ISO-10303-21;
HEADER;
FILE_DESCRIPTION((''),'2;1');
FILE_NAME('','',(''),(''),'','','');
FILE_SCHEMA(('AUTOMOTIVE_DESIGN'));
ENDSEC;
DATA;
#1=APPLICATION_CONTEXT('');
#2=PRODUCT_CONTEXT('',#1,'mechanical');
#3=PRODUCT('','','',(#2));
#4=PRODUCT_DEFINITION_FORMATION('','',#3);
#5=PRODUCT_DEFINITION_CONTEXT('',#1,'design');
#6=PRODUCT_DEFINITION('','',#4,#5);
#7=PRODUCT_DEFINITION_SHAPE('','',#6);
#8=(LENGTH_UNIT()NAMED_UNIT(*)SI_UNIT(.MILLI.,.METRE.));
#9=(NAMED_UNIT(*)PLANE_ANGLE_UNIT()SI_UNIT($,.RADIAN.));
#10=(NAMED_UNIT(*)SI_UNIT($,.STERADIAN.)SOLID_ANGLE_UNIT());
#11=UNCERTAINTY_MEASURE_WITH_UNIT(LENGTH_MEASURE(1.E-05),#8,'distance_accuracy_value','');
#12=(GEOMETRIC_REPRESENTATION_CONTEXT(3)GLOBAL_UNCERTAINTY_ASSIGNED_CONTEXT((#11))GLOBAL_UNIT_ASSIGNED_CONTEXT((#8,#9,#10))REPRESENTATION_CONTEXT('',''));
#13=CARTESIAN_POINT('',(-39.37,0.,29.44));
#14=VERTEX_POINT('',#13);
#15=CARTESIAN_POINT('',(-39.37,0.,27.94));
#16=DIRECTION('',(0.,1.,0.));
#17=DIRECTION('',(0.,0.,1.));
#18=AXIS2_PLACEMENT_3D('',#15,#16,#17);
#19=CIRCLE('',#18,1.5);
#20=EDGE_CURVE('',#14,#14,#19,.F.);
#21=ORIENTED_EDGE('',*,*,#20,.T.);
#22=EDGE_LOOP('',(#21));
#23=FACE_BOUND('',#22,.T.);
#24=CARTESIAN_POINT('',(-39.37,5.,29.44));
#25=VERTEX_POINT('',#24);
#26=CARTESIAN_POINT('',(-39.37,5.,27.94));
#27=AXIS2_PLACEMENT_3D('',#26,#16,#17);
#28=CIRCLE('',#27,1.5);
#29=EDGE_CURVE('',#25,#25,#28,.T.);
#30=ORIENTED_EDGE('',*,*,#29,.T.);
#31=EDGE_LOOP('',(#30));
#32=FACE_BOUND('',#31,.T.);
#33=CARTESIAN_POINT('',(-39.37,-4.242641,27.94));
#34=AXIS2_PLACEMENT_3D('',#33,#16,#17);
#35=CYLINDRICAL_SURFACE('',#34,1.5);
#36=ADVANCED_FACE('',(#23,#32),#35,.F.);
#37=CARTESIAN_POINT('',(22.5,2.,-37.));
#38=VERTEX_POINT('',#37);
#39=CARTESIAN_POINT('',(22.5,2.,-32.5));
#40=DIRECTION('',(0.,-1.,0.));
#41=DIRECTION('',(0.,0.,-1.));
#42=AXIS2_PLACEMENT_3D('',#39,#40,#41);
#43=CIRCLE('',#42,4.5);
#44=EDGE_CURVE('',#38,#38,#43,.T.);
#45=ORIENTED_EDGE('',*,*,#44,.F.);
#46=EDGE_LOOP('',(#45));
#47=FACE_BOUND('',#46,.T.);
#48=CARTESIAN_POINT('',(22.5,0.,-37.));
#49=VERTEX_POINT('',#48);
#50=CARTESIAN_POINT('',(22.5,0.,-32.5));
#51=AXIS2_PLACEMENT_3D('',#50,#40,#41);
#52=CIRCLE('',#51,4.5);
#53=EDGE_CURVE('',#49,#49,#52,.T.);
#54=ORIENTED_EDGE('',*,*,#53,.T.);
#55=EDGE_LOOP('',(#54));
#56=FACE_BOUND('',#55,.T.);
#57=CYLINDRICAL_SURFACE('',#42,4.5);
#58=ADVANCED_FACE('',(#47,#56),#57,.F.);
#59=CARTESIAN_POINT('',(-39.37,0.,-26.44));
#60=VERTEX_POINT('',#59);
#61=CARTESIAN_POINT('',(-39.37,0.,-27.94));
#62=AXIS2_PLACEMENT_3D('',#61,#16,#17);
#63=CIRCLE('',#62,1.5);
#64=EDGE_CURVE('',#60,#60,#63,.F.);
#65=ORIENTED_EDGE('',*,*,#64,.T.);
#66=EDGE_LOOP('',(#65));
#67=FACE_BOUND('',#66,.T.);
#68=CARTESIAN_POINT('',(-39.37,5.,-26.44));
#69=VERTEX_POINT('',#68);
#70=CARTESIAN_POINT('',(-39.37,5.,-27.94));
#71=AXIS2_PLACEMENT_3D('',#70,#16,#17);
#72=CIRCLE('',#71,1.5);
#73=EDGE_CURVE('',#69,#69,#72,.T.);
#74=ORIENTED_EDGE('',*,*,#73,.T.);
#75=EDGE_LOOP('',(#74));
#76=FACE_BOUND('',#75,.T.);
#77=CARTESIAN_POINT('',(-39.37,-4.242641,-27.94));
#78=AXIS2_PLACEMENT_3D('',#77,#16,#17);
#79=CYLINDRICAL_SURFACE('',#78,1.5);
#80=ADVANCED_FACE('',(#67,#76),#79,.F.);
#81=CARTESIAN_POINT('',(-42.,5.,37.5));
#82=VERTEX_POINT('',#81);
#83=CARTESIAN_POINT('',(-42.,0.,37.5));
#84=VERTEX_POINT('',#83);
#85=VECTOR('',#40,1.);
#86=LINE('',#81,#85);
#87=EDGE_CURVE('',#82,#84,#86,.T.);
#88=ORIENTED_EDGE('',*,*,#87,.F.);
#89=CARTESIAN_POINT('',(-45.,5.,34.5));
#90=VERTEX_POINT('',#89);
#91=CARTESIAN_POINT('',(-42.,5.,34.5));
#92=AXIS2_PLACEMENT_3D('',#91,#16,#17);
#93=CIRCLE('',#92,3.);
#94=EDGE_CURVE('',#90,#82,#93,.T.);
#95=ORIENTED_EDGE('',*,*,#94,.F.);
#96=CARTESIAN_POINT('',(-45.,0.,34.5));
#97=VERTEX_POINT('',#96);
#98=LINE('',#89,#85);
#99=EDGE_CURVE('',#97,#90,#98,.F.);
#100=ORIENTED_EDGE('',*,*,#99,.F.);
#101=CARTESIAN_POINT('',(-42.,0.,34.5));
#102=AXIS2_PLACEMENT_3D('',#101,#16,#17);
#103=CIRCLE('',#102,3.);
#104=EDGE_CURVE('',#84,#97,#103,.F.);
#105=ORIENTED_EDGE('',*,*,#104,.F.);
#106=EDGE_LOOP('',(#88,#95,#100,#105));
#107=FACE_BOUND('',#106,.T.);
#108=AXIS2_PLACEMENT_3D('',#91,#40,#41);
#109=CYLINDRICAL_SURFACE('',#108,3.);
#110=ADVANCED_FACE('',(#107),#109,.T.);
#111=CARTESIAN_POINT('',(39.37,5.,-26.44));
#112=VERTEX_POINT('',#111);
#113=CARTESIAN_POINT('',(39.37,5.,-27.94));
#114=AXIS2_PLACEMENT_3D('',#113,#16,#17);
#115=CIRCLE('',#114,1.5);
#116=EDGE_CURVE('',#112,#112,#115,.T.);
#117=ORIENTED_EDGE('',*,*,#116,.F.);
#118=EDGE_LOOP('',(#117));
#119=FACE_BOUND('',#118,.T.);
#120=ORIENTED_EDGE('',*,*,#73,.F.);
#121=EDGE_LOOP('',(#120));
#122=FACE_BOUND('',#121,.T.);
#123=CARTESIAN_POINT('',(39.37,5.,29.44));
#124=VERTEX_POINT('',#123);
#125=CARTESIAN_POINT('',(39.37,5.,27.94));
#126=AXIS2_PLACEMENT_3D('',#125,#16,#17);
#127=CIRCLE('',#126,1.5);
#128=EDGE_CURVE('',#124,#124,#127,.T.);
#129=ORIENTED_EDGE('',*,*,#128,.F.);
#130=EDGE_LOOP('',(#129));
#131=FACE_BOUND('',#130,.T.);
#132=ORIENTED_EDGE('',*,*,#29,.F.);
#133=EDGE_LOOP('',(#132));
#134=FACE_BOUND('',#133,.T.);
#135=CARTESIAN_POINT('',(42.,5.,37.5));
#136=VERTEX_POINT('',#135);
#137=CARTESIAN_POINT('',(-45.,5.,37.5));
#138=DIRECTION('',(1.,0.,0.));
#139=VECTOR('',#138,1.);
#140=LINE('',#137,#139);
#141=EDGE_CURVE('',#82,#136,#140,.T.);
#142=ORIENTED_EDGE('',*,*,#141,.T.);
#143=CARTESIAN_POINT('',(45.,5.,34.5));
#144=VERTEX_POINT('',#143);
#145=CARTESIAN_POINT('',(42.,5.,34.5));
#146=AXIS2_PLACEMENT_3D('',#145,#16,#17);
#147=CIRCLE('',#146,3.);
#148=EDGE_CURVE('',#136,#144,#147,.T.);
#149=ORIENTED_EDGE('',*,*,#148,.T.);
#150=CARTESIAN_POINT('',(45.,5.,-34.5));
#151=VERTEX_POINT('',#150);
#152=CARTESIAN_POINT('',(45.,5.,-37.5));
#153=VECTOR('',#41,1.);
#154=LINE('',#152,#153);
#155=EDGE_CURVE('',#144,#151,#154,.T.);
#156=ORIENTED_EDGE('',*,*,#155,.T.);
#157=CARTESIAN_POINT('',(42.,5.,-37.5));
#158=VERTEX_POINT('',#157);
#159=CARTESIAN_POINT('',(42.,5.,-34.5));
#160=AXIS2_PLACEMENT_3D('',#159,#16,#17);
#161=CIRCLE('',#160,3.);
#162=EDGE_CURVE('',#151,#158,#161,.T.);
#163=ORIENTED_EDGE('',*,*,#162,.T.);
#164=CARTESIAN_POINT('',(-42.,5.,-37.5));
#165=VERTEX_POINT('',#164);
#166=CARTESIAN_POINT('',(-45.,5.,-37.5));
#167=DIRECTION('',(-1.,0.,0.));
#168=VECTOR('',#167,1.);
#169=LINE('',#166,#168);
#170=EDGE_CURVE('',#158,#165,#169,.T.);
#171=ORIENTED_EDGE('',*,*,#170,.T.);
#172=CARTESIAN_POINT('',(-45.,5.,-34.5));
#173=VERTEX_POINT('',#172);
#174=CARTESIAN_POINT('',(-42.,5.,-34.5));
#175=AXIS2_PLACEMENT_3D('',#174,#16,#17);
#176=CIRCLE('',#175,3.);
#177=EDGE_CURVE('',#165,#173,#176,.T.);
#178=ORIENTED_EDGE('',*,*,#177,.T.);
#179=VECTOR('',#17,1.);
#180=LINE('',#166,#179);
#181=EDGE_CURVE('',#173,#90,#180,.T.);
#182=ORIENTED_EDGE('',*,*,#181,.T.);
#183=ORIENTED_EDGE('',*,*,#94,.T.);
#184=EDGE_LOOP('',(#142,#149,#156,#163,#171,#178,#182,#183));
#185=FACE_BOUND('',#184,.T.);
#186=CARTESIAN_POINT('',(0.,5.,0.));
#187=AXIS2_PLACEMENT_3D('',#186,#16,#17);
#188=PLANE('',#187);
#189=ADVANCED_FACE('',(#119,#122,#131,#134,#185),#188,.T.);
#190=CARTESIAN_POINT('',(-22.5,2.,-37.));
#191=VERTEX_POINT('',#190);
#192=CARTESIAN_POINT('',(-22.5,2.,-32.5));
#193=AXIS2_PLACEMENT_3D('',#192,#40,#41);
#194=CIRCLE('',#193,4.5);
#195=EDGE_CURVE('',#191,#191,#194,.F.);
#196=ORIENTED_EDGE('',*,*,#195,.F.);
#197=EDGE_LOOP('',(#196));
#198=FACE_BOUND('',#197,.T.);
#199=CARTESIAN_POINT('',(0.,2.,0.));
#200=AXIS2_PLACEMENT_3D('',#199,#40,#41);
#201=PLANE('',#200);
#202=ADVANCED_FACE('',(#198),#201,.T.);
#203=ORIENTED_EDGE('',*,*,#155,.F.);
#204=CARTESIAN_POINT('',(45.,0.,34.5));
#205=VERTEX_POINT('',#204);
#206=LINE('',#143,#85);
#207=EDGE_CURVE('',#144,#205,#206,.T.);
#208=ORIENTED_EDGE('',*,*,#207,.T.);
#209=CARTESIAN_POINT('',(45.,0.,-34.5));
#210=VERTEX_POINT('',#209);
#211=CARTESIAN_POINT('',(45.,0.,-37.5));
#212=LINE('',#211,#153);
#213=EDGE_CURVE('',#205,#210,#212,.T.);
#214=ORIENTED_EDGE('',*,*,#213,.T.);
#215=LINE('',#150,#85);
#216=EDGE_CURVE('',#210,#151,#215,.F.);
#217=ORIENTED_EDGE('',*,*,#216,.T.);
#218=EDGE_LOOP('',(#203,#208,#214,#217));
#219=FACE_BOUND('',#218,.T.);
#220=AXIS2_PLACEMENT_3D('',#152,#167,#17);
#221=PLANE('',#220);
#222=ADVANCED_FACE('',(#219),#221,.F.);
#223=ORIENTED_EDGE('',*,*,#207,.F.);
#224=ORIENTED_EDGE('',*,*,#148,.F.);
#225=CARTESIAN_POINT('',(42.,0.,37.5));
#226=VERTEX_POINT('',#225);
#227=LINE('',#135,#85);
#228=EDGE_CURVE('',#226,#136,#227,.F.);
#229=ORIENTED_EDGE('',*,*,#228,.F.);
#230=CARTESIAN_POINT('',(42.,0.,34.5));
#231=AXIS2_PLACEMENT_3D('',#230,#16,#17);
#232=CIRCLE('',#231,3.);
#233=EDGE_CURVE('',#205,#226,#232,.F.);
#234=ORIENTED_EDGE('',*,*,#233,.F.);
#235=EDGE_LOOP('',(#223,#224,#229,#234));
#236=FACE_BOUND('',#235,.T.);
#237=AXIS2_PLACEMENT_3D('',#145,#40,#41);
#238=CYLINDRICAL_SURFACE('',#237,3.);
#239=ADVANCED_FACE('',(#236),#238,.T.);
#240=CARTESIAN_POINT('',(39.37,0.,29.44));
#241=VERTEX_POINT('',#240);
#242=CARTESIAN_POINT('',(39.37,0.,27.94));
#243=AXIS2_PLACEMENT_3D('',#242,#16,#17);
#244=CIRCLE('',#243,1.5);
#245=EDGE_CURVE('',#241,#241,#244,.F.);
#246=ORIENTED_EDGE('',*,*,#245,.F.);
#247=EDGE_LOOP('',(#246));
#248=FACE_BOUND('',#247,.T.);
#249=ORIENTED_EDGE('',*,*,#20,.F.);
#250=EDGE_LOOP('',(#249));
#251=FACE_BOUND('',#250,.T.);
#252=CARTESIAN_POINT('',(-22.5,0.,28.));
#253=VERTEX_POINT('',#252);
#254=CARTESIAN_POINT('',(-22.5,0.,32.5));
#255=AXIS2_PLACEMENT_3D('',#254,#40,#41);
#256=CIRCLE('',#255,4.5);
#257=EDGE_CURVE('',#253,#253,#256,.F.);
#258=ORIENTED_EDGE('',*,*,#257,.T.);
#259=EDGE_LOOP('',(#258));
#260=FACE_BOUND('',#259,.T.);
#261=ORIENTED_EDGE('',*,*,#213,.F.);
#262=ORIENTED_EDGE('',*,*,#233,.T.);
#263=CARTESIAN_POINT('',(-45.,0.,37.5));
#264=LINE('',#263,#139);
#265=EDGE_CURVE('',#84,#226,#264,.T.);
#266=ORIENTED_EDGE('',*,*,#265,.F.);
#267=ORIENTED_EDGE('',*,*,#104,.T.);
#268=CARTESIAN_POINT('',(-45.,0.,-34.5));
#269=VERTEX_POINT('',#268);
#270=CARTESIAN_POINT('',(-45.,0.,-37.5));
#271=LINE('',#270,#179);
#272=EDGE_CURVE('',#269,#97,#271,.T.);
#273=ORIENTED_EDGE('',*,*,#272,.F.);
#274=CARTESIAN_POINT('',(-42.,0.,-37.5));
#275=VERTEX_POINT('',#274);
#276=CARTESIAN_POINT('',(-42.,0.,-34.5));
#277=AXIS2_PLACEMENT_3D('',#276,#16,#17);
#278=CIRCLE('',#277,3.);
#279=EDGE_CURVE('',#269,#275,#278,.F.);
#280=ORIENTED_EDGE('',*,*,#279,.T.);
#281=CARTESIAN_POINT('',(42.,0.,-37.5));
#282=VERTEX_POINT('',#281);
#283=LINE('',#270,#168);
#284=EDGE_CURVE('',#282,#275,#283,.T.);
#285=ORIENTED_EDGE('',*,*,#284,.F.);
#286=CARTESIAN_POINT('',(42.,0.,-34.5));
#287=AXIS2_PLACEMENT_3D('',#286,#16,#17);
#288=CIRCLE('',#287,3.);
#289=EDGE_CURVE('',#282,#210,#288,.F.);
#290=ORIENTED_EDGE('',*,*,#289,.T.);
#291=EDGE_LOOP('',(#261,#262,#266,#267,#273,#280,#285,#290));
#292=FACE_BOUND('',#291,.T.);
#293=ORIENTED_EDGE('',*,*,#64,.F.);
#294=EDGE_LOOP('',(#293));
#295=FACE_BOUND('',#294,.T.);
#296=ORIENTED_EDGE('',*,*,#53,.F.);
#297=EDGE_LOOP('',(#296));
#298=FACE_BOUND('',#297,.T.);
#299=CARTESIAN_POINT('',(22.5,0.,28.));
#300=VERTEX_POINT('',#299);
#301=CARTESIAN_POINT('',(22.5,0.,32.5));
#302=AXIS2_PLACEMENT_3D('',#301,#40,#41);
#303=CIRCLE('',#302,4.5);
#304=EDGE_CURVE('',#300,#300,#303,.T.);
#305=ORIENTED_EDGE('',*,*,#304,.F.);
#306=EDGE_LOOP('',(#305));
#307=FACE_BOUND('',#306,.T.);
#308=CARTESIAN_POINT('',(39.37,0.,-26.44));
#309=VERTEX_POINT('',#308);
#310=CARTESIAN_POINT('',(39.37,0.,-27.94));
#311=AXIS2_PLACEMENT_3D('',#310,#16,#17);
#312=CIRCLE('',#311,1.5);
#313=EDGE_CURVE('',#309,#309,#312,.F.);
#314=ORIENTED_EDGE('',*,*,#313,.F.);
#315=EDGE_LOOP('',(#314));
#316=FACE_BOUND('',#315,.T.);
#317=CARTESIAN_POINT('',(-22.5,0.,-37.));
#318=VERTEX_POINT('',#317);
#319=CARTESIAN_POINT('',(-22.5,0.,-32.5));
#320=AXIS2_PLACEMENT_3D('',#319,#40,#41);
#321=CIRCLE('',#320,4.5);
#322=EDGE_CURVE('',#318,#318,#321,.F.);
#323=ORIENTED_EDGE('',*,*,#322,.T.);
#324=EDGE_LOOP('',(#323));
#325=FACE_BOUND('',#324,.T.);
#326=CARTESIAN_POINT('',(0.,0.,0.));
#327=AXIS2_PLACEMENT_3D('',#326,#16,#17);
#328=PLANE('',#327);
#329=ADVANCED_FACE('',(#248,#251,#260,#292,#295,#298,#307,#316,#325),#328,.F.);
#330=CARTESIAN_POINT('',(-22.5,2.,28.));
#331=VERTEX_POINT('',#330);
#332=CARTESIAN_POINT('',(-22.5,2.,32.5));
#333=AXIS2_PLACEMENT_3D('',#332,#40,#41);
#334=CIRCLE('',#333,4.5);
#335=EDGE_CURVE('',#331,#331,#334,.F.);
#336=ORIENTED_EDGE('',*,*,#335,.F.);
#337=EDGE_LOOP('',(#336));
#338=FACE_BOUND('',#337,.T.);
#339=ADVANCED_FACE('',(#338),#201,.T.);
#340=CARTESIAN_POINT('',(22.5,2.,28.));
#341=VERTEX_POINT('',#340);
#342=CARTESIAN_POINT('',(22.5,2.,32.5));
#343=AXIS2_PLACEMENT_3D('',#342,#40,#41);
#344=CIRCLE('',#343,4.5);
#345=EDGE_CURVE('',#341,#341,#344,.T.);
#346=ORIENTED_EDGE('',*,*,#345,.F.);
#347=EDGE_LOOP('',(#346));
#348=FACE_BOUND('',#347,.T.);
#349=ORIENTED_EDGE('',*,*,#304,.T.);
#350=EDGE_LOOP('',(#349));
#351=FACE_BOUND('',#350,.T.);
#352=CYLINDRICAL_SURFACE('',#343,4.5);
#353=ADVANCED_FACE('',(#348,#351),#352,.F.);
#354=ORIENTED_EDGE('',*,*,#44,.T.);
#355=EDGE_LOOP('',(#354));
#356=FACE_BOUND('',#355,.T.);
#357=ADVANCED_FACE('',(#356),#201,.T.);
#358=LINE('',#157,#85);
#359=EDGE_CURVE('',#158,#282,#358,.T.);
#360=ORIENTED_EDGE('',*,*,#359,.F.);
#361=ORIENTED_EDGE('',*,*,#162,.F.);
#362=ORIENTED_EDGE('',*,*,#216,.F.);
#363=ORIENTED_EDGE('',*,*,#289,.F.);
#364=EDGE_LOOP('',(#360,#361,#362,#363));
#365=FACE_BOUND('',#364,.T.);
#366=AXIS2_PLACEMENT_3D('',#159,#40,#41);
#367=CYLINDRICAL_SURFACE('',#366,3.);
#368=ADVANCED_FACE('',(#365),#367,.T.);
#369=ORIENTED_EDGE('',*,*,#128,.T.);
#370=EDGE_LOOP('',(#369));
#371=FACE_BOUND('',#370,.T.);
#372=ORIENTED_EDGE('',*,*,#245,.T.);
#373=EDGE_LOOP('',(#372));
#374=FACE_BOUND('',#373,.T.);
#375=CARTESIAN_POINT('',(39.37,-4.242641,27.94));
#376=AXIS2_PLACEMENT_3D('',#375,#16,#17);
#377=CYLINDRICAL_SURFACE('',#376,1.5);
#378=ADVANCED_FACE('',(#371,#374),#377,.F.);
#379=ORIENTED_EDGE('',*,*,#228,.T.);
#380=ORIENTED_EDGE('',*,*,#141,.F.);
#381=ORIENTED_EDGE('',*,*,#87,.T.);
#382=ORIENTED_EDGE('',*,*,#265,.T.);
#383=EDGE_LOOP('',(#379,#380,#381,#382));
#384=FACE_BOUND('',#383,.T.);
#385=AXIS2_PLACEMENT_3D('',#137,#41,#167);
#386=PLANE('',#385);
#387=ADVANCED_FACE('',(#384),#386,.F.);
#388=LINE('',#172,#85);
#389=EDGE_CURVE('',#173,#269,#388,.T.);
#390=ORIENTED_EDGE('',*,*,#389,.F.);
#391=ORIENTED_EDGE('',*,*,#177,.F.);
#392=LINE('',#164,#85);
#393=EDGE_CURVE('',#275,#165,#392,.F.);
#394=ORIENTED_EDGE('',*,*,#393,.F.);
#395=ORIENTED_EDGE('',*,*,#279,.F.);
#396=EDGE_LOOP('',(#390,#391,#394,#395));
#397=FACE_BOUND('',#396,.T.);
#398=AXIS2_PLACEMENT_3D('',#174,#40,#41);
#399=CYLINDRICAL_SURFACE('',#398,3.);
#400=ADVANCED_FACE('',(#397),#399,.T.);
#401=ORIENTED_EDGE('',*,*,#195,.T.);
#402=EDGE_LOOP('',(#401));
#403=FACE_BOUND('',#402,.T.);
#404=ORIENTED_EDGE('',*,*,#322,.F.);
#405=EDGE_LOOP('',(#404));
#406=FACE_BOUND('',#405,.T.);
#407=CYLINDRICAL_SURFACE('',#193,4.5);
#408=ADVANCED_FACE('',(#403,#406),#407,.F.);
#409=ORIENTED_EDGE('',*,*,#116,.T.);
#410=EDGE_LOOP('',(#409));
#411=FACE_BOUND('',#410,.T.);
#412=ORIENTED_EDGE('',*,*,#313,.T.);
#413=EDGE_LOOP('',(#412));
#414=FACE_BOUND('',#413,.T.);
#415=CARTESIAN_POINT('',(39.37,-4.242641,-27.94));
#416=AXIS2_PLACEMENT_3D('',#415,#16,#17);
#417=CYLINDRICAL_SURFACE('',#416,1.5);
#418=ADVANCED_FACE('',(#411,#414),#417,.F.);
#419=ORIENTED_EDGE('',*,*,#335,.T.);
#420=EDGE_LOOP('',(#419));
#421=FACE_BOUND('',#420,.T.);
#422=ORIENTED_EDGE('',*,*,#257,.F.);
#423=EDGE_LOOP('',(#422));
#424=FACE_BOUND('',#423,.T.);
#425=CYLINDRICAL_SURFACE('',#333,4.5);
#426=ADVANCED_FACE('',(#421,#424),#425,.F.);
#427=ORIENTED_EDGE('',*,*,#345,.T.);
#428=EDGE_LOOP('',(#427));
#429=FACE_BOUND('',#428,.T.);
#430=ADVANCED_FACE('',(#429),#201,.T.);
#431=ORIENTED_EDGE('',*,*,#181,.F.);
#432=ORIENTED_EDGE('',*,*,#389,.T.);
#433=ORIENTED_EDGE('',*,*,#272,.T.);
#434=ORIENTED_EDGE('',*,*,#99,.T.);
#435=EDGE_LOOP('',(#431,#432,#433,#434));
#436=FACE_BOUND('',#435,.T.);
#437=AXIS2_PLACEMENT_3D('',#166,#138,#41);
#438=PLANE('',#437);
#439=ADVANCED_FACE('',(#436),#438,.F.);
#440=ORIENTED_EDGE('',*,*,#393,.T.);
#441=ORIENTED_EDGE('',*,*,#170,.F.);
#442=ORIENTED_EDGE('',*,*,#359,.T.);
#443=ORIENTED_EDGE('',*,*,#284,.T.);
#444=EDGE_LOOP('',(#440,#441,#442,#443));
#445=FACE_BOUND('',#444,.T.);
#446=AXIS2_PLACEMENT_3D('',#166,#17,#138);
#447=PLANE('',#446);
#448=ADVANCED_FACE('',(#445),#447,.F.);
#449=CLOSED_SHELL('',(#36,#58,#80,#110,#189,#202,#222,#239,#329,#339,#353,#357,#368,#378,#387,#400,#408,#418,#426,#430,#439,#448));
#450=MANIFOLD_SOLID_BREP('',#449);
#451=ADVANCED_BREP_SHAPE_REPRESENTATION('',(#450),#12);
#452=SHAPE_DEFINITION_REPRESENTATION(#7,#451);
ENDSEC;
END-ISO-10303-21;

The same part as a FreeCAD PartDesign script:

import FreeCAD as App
import Part
import Sketcher

V = App.Vector
Q = App.Units.Quantity


def edges_at(feature, points):
    """Names of the edges that pass closest to the given points."""
    edges = feature.Shape.Edges
    near = lambda p: min(range(len(edges)), key=lambda i: edges[i].distToShape(Part.Vertex(*p))[0])
    return sorted({f"Edge{near(p) + 1}" for p in points})


def add_polygon(sketch, points):
    """Adds a closed chain of lines whose ends are joined by coincident constraints."""
    first, n = sketch.GeometryCount, len(points)
    for a, b in zip(points, points[1:] + points[:1]):
        sketch.addGeometry(Part.LineSegment(App.Vector(*a, 0), App.Vector(*b, 0)), False)
    for i in range(n):
        sketch.addConstraint(Sketcher.Constraint("Coincident", first + i, 2, first + (i + 1) % n, 1))

doc = App.newDocument("Part")
body = doc.addObject("PartDesign::Body", "Body")

sketch1 = body.newObject("Sketcher::SketchObject", "Sketch")
sketch1.AttachmentSupport = (doc.getObject("XZ_Plane"), [""])
sketch1.MapMode = "FlatFace"
add_polygon(sketch1, [(-45, -38), (-45, 38), (45, 38), (45, -38)])
sketch1.addConstraint(Sketcher.Constraint("Vertical", 0))
sketch1.addConstraint(Sketcher.Constraint("Horizontal", 1))
sketch1.addConstraint(Sketcher.Constraint("Vertical", 2))
sketch1.addConstraint(Sketcher.Constraint("Horizontal", 3))
sketch1.addConstraint(Sketcher.Constraint("Symmetric", 0, 2, 2, 2, -1, 1))
sketch1.addConstraint(Sketcher.Constraint("DistanceX", 1, 1, 1, 2, Q("90 mm")))
sketch1.addConstraint(Sketcher.Constraint("DistanceY", 0, 1, 0, 2, Q("75 mm")))
pad1 = body.newObject("PartDesign::Pad", "Pad")
pad1.Profile = sketch1
pad1.Length = 5
pad1.Reversed = True

sketch2 = body.newObject("Sketcher::SketchObject", "Sketch001")
sketch2.AttachmentSupport = (doc.getObject("XZ_Plane"), [""])
sketch2.MapMode = "FlatFace"
sketch2.AttachmentOffset = App.Placement(V(0, 0, -5), App.Rotation())
sketch2.addGeometry(Part.Circle(V(-39.4, -27.9, 0), V(0, 0, 1), 1.5), False)
sketch2.addGeometry(Part.Circle(V(39.4, -27.9, 0), V(0, 0, 1), 1.5), False)
sketch2.addGeometry(Part.Circle(V(39.4, 27.9, 0), V(0, 0, 1), 1.5), False)
sketch2.addGeometry(Part.Circle(V(-39.4, 27.9, 0), V(0, 0, 1), 1.5), False)
sketch2.addConstraint(Sketcher.Constraint("Equal", 0, 1))
sketch2.addConstraint(Sketcher.Constraint("Equal", 1, 2))
sketch2.addConstraint(Sketcher.Constraint("Equal", 2, 3))
sketch2.addConstraint(Sketcher.Constraint("Symmetric", 0, 3, 2, 3, -1, 1))
sketch2.addConstraint(Sketcher.Constraint("Symmetric", 1, 3, 3, 3, -1, 1))
sketch2.addConstraint(Sketcher.Constraint("Symmetric", 0, 3, 1, 3, -2))
sketch2.addConstraint(Sketcher.Constraint("Diameter", 0, Q("3 mm")))
sketch2.addConstraint(Sketcher.Constraint("DistanceX", 0, 3, -1, 1, Q("39.37 mm")))
sketch2.addConstraint(Sketcher.Constraint("DistanceY", 0, 3, -1, 1, Q("27.94 mm")))
pocket1 = body.newObject("PartDesign::Pocket", "Pocket")
pocket1.Profile = sketch2
pocket1.Length = 5
pocket1.Reversed = True

sketch3 = body.newObject("Sketcher::SketchObject", "Sketch002")
sketch3.AttachmentSupport = (doc.getObject("XZ_Plane"), [""])
sketch3.MapMode = "FlatFace"
sketch3.addGeometry(Part.Circle(V(-22.5, -32.5, 0), V(0, 0, 1), 4.5), False)
sketch3.addGeometry(Part.Circle(V(-22.5, 32.5, 0), V(0, 0, 1), 4.5), False)
sketch3.addGeometry(Part.Circle(V(22.5, 32.5, 0), V(0, 0, 1), 4.5), False)
sketch3.addGeometry(Part.Circle(V(22.5, -32.5, 0), V(0, 0, 1), 4.5), False)
sketch3.addConstraint(Sketcher.Constraint("Equal", 0, 1))
sketch3.addConstraint(Sketcher.Constraint("Equal", 1, 2))
sketch3.addConstraint(Sketcher.Constraint("Equal", 2, 3))
sketch3.addConstraint(Sketcher.Constraint("Symmetric", 0, 3, 2, 3, -1, 1))
sketch3.addConstraint(Sketcher.Constraint("Symmetric", 1, 3, 3, 3, -1, 1))
sketch3.addConstraint(Sketcher.Constraint("Symmetric", 1, 3, 2, 3, -2))
sketch3.addConstraint(Sketcher.Constraint("Diameter", 0, Q("9 mm")))
sketch3.addConstraint(Sketcher.Constraint("DistanceY", 0, 3, 1, 3, Q("65 mm")))
sketch3.addConstraint(Sketcher.Constraint("DistanceX", 1, 3, 2, 3, Q("45 mm")))
pocket2 = body.newObject("PartDesign::Pocket", "Pocket001")
pocket2.Profile = sketch3
pocket2.Length = 2
doc.recompute()

fillet = body.newObject("PartDesign::Fillet", "Fillet")
fillet.Base = (pocket2, edges_at(pocket2, [
    (45, 2.5, 37.5),
    (-45, 2.5, 37.5),
    (-45, 2.5, -37.5),
    (45, 2.5, -37.5),
]))
fillet.Radius = 3

doc.recompute()
